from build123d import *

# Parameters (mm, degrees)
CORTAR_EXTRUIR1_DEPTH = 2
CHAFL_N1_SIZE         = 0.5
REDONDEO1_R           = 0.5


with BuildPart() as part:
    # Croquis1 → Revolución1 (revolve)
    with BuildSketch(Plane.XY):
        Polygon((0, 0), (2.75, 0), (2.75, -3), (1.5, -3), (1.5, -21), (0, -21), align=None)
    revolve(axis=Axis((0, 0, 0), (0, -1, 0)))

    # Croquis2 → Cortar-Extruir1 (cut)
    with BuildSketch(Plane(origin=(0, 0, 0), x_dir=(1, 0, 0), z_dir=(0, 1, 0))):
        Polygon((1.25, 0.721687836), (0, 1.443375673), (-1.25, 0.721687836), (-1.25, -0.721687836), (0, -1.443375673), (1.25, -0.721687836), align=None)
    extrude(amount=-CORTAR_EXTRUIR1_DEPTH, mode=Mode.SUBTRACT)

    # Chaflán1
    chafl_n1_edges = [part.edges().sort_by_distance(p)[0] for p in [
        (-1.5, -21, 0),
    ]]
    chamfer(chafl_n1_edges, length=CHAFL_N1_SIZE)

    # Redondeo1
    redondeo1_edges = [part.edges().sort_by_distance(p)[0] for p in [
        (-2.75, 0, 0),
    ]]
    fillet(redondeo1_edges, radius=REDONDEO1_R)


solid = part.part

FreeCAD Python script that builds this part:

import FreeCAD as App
import Part
import Sketcher
Q = App.Units.Quantity


def edges_at(feature, points):
    """Names of the edges that pass closest to the given points."""
    edges = feature.Shape.Edges
    near = lambda p: min(range(len(edges)), key=lambda i: edges[i].distToShape(Part.Vertex(*p))[0])
    return sorted({f"Edge{near(p) + 1}" for p in points})


def add_polygon(sketch, points):
    """Adds a closed chain of lines whose ends are joined by coincident constraints."""
    first, n = sketch.GeometryCount, len(points)
    for a, b in zip(points, points[1:] + points[:1]):
        sketch.addGeometry(Part.LineSegment(App.Vector(*a, 0), App.Vector(*b, 0)), False)
    for i in range(n):
        sketch.addConstraint(Sketcher.Constraint("Coincident", first + i, 2, first + (i + 1) % n, 1))

doc = App.newDocument("Part")
body = doc.addObject("PartDesign::Body", "Body")

sketch1 = body.newObject("Sketcher::SketchObject", "Sketch")
sketch1.AttachmentSupport = (doc.getObject("XY_Plane"), [""])
sketch1.MapMode = "FlatFace"
add_polygon(sketch1, [(2.8, 0), (0, 0), (0, -21), (1.5, -21), (1.5, -3), (2.8, -3)])
sketch1.addConstraint(Sketcher.Constraint("Horizontal", 0))
sketch1.addConstraint(Sketcher.Constraint("Vertical", 1))
sketch1.addConstraint(Sketcher.Constraint("Horizontal", 2))
sketch1.addConstraint(Sketcher.Constraint("Vertical", 3))
sketch1.addConstraint(Sketcher.Constraint("Horizontal", 4))
sketch1.addConstraint(Sketcher.Constraint("Vertical", 5))
sketch1.addConstraint(Sketcher.Constraint("Coincident", 0, 2, -1, 1))
sketch1.addConstraint(Sketcher.Constraint("DistanceY", 1, 2, 1, 1, 21.0))
sketch1.addConstraint(Sketcher.Constraint("DistanceY", 3, 1, 3, 2, 18.0))
sketch1.addConstraint(Sketcher.Constraint("DistanceX", 2, 1, 2, 2, 1.5))
sketch1.addConstraint(Sketcher.Constraint("DistanceX", 0, 2, 0, 1, 2.75))
revolution = body.newObject("PartDesign::Revolution", "Revolution")
revolution.Profile = sketch1
revolution.ReferenceAxis = (sketch1, ["V_Axis"])
revolution.Angle = 360

sketch2 = body.newObject("Sketcher::SketchObject", "Sketch001")
sketch2.AttachmentSupport = (doc.getObject("XZ_Plane"), [""])
sketch2.MapMode = "FlatFace"
add_polygon(sketch2, [(1.2, -0.7), (0, -1.4), (-1.2, -0.7), (-1.2, 0.7), (0, 1.4), (1.2, 0.7)])
sketch2.addConstraint(Sketcher.Constraint("Vertical", 2))
sketch2.addConstraint(Sketcher.Constraint("Vertical", 5))
sketch2.addConstraint(Sketcher.Constraint("Symmetric", 0, 2, 3, 2, -1, 1))
sketch2.addConstraint(Sketcher.Constraint("Symmetric", 1, 2, 4, 2, -1, 1))
sketch2.addConstraint(Sketcher.Constraint("PointOnObject", 0, 2, -2))
sketch2.addConstraint(Sketcher.Constraint("Parallel", 0, 3))
sketch2.addConstraint(Sketcher.Constraint("Horizontal", 2, 2, 4, 2))
sketch2.addConstraint(Sketcher.Constraint("Angle", 0, Q("-150 deg")))
sketch2.addConstraint(Sketcher.Constraint("DistanceX", 2, 2, 4, 2, 2.5))
sketch2.addConstraint(Sketcher.Constraint("DistanceY", 2, 1, 2, 2, 1.443376))
pocket1 = body.newObject("PartDesign::Pocket", "Pocket")
pocket1.Profile = sketch2
pocket1.Length = 2
pocket1.Reversed = True
doc.recompute()

chamfer = body.newObject("PartDesign::Chamfer", "Chamfer")
chamfer.Base = (pocket1, edges_at(pocket1, [(-1.5, -21, 0)]))
chamfer.Size = 0.5
doc.recompute()

fillet = body.newObject("PartDesign::Fillet", "Fillet")
fillet.Base = (chamfer, edges_at(chamfer, [(-2.75, 0, 0)]))
fillet.Radius = 0.5

doc.recompute()
